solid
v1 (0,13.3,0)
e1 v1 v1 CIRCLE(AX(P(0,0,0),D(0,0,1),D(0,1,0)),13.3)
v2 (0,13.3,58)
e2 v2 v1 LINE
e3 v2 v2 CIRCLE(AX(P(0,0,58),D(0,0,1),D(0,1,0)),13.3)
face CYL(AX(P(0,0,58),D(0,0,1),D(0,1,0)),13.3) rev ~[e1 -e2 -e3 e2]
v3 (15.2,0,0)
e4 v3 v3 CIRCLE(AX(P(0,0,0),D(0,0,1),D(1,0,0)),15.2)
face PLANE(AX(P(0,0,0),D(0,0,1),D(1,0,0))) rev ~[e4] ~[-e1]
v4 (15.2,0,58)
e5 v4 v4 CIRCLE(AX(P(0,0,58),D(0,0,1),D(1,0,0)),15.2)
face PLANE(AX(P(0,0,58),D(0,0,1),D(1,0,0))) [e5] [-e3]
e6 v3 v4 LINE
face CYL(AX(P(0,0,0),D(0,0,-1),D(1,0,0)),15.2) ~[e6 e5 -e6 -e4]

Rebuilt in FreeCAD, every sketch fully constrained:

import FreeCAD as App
import Part
import Sketcher

V = App.Vector
Q = App.Units.Quantity

doc = App.newDocument("Part")
body = doc.addObject("PartDesign::Body", "Body")

sketch1 = body.newObject("Sketcher::SketchObject", "Sketch")
sketch1.AttachmentSupport = (doc.getObject("XY_Plane"), [""])
sketch1.MapMode = "FlatFace"
sketch1.addGeometry(Part.Circle(V(0, 0, 0), V(0, 0, 1), 15), False)
sketch1.addConstraint(Sketcher.Constraint("Coincident", 0, 3, -1, 1))
sketch1.addConstraint(Sketcher.Constraint("Diameter", 0, Q("30.4 mm")))
pad1 = body.newObject("PartDesign::Pad", "Pad")
pad1.Profile = sketch1
pad1.Length = 58

sketch2 = body.newObject("Sketcher::SketchObject", "Sketch001")
sketch2.AttachmentSupport = (doc.getObject("XY_Plane"), [""])
sketch2.MapMode = "FlatFace"
sketch2.AttachmentOffset = App.Placement(V(0, 0, 58), App.Rotation())
sketch2.addGeometry(Part.Circle(V(0, 0, 0), V(0, 0, 1), 13), False)
sketch2.addConstraint(Sketcher.Constraint("Coincident", 0, 3, -1, 1))
sketch2.addConstraint(Sketcher.Constraint("Diameter", 0, Q("26.6 mm")))
pocket1 = body.newObject("PartDesign::Pocket", "Pocket")
pocket1.Profile = sketch2
pocket1.Length = 58

doc.recompute()
